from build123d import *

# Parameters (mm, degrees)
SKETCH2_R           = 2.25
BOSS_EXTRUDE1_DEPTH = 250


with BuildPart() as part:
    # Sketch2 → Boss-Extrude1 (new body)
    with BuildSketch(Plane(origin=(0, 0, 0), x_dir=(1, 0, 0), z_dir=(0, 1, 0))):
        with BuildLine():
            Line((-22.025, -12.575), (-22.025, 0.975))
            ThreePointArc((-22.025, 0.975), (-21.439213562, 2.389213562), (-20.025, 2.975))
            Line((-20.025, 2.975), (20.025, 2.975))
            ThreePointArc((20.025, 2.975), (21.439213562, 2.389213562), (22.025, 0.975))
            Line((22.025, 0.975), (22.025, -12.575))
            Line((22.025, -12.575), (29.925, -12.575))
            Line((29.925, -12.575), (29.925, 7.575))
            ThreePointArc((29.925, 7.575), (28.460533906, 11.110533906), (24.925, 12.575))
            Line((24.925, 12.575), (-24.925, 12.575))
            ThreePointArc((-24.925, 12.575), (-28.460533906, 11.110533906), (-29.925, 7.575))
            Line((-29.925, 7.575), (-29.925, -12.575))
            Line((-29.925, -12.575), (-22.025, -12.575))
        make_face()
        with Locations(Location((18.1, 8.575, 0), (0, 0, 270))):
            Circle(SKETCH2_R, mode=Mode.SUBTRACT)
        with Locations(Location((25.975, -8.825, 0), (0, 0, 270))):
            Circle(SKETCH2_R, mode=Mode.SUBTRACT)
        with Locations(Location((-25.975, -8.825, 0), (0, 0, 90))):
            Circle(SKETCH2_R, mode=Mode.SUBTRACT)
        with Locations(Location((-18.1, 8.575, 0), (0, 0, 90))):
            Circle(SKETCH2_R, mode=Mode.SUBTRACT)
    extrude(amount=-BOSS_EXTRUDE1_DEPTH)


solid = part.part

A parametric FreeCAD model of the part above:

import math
import FreeCAD as App
import Part
import Sketcher

V = App.Vector

doc = App.newDocument("Part")
body = doc.addObject("PartDesign::Body", "Body")

# Sketch on XZ plane
sketch1 = doc.addObject("Sketcher::SketchObject", "Sketch")
body.addObject(sketch1)
sketch1.AttachmentSupport = (doc.XZ_Plane, [""])
sketch1.MapMode = "FlatFace"
sketch1.addGeometry([
    Part.LineSegment(V(-22, 12.6, 0), V(-22, -1, 0)),  # 0
    Part.ArcOfCircle(Part.Circle(V(-20, -1, 0), V(0, 0, 1), 2), math.radians(-180), math.radians(-90)),  # 1
    Part.LineSegment(V(-20, -3, 0), V(20, -3, 0)),  # 2
    Part.ArcOfCircle(Part.Circle(V(20, -1, 0), V(0, 0, 1), 2), math.radians(-90), math.radians(0)),  # 3
    Part.LineSegment(V(22, -1, 0), V(22, 12.6, 0)),  # 4
    Part.LineSegment(V(22, 12.6, 0), V(29.9, 12.6, 0)),  # 5
    Part.LineSegment(V(29.9, 12.6, 0), V(29.9, -7.6, 0)),  # 6
    Part.ArcOfCircle(Part.Circle(V(24.9, -7.6, 0), V(0, 0, 1), 5), math.radians(-90), math.radians(0)),  # 7
    Part.LineSegment(V(24.9, -12.6, 0), V(-24.9, -12.6, 0)),  # 8
    Part.ArcOfCircle(Part.Circle(V(-24.9, -7.6, 0), V(0, 0, 1), 5), math.radians(180), math.radians(270)),  # 9
    Part.LineSegment(V(-29.9, -7.6, 0), V(-29.9, 12.6, 0)),  # 10
    Part.LineSegment(V(-29.9, 12.6, 0), V(-22, 12.6, 0)),  # 11
    Part.Circle(V(-26, 8.8, 0), V(0, 0, 1), 2.2),  # 12
    Part.Circle(V(26, 8.8, 0), V(0, 0, 1), 2.2),  # 13
    Part.Circle(V(-18.1, -8.6, 0), V(0, 0, 1), 2.2),  # 14
    Part.Circle(V(18.1, -8.6, 0), V(0, 0, 1), 2.2),  # 15
], False)
sketch1.addConstraint([
    Sketcher.Constraint("Tangent", 0, 2, 1, 1),
    Sketcher.Constraint("Tangent", 1, 2, 2, 1),
    Sketcher.Constraint("Tangent", 2, 2, 3, 1),
    Sketcher.Constraint("Tangent", 3, 2, 4, 1),
    Sketcher.Constraint("Coincident", 4, 2, 5, 1),
    Sketcher.Constraint("Coincident", 5, 2, 6, 1),
    Sketcher.Constraint("Tangent", 6, 2, 7, 2),
    Sketcher.Constraint("Tangent", 7, 1, 8, 1),
    Sketcher.Constraint("Tangent", 8, 2, 9, 2),
    Sketcher.Constraint("Tangent", 9, 1, 10, 1),
    Sketcher.Constraint("Coincident", 10, 2, 11, 1),
    Sketcher.Constraint("Coincident", 11, 2, 0, 1),
    Sketcher.Constraint("Vertical", 0),
    Sketcher.Constraint("Horizontal", 2),
    Sketcher.Constraint("Vertical", 4),
    Sketcher.Constraint("Horizontal", 5),
    Sketcher.Constraint("Vertical", 6),
    Sketcher.Constraint("Horizontal", 8),
    Sketcher.Constraint("Vertical", 10),
    Sketcher.Constraint("Horizontal", 11),
    Sketcher.Constraint("Equal", 1, 3),
    Sketcher.Constraint("Equal", 7, 9),
    Sketcher.Constraint("Equal", 12, 13),
    Sketcher.Constraint("Equal", 13, 14),
    Sketcher.Constraint("Equal", 14, 15),
    Sketcher.Constraint("Symmetric", 12, 3, 13, 3, -2),
    Sketcher.Constraint("Symmetric", 14, 3, 15, 3, -2),
    Sketcher.Constraint("Symmetric", 5, 2, 10, 2, -2),
    Sketcher.Constraint("Equal", 5, 11),
    Sketcher.Constraint("Radius", 1, 2.0),
    Sketcher.Constraint("Radius", 7, 5.0),
    Sketcher.Constraint("Diameter", 12, 4.5),
    Sketcher.Constraint("DistanceX", 5, 1, 5, 2, 7.9),
    Sketcher.Constraint("DistanceX", 12, 3, 3, 3, 46.0),
    Sketcher.Constraint("DistanceY", 14, 3, 9, 3, 1.0),
    Sketcher.Constraint("DistanceX", 2, 1, 2, 2, 40.05),
    Sketcher.Constraint("DistanceY", 0, 2, 0, 1, 13.55),
    Sketcher.Constraint("DistanceY", 6, 2, 6, 1, 20.15),
    Sketcher.Constraint("DistanceX", 14, 3, -1, 1, 18.1),
    Sketcher.Constraint("DistanceY", 1, 3, 12, 3, 9.8),
    Sketcher.Constraint("DistanceY", 1, 3, -1, 1, 0.975),
])
pad1 = doc.addObject("PartDesign::Pad", "Pad")
body.addObject(pad1)
pad1.Profile = sketch1
pad1.Length = 250

doc.recompute()
